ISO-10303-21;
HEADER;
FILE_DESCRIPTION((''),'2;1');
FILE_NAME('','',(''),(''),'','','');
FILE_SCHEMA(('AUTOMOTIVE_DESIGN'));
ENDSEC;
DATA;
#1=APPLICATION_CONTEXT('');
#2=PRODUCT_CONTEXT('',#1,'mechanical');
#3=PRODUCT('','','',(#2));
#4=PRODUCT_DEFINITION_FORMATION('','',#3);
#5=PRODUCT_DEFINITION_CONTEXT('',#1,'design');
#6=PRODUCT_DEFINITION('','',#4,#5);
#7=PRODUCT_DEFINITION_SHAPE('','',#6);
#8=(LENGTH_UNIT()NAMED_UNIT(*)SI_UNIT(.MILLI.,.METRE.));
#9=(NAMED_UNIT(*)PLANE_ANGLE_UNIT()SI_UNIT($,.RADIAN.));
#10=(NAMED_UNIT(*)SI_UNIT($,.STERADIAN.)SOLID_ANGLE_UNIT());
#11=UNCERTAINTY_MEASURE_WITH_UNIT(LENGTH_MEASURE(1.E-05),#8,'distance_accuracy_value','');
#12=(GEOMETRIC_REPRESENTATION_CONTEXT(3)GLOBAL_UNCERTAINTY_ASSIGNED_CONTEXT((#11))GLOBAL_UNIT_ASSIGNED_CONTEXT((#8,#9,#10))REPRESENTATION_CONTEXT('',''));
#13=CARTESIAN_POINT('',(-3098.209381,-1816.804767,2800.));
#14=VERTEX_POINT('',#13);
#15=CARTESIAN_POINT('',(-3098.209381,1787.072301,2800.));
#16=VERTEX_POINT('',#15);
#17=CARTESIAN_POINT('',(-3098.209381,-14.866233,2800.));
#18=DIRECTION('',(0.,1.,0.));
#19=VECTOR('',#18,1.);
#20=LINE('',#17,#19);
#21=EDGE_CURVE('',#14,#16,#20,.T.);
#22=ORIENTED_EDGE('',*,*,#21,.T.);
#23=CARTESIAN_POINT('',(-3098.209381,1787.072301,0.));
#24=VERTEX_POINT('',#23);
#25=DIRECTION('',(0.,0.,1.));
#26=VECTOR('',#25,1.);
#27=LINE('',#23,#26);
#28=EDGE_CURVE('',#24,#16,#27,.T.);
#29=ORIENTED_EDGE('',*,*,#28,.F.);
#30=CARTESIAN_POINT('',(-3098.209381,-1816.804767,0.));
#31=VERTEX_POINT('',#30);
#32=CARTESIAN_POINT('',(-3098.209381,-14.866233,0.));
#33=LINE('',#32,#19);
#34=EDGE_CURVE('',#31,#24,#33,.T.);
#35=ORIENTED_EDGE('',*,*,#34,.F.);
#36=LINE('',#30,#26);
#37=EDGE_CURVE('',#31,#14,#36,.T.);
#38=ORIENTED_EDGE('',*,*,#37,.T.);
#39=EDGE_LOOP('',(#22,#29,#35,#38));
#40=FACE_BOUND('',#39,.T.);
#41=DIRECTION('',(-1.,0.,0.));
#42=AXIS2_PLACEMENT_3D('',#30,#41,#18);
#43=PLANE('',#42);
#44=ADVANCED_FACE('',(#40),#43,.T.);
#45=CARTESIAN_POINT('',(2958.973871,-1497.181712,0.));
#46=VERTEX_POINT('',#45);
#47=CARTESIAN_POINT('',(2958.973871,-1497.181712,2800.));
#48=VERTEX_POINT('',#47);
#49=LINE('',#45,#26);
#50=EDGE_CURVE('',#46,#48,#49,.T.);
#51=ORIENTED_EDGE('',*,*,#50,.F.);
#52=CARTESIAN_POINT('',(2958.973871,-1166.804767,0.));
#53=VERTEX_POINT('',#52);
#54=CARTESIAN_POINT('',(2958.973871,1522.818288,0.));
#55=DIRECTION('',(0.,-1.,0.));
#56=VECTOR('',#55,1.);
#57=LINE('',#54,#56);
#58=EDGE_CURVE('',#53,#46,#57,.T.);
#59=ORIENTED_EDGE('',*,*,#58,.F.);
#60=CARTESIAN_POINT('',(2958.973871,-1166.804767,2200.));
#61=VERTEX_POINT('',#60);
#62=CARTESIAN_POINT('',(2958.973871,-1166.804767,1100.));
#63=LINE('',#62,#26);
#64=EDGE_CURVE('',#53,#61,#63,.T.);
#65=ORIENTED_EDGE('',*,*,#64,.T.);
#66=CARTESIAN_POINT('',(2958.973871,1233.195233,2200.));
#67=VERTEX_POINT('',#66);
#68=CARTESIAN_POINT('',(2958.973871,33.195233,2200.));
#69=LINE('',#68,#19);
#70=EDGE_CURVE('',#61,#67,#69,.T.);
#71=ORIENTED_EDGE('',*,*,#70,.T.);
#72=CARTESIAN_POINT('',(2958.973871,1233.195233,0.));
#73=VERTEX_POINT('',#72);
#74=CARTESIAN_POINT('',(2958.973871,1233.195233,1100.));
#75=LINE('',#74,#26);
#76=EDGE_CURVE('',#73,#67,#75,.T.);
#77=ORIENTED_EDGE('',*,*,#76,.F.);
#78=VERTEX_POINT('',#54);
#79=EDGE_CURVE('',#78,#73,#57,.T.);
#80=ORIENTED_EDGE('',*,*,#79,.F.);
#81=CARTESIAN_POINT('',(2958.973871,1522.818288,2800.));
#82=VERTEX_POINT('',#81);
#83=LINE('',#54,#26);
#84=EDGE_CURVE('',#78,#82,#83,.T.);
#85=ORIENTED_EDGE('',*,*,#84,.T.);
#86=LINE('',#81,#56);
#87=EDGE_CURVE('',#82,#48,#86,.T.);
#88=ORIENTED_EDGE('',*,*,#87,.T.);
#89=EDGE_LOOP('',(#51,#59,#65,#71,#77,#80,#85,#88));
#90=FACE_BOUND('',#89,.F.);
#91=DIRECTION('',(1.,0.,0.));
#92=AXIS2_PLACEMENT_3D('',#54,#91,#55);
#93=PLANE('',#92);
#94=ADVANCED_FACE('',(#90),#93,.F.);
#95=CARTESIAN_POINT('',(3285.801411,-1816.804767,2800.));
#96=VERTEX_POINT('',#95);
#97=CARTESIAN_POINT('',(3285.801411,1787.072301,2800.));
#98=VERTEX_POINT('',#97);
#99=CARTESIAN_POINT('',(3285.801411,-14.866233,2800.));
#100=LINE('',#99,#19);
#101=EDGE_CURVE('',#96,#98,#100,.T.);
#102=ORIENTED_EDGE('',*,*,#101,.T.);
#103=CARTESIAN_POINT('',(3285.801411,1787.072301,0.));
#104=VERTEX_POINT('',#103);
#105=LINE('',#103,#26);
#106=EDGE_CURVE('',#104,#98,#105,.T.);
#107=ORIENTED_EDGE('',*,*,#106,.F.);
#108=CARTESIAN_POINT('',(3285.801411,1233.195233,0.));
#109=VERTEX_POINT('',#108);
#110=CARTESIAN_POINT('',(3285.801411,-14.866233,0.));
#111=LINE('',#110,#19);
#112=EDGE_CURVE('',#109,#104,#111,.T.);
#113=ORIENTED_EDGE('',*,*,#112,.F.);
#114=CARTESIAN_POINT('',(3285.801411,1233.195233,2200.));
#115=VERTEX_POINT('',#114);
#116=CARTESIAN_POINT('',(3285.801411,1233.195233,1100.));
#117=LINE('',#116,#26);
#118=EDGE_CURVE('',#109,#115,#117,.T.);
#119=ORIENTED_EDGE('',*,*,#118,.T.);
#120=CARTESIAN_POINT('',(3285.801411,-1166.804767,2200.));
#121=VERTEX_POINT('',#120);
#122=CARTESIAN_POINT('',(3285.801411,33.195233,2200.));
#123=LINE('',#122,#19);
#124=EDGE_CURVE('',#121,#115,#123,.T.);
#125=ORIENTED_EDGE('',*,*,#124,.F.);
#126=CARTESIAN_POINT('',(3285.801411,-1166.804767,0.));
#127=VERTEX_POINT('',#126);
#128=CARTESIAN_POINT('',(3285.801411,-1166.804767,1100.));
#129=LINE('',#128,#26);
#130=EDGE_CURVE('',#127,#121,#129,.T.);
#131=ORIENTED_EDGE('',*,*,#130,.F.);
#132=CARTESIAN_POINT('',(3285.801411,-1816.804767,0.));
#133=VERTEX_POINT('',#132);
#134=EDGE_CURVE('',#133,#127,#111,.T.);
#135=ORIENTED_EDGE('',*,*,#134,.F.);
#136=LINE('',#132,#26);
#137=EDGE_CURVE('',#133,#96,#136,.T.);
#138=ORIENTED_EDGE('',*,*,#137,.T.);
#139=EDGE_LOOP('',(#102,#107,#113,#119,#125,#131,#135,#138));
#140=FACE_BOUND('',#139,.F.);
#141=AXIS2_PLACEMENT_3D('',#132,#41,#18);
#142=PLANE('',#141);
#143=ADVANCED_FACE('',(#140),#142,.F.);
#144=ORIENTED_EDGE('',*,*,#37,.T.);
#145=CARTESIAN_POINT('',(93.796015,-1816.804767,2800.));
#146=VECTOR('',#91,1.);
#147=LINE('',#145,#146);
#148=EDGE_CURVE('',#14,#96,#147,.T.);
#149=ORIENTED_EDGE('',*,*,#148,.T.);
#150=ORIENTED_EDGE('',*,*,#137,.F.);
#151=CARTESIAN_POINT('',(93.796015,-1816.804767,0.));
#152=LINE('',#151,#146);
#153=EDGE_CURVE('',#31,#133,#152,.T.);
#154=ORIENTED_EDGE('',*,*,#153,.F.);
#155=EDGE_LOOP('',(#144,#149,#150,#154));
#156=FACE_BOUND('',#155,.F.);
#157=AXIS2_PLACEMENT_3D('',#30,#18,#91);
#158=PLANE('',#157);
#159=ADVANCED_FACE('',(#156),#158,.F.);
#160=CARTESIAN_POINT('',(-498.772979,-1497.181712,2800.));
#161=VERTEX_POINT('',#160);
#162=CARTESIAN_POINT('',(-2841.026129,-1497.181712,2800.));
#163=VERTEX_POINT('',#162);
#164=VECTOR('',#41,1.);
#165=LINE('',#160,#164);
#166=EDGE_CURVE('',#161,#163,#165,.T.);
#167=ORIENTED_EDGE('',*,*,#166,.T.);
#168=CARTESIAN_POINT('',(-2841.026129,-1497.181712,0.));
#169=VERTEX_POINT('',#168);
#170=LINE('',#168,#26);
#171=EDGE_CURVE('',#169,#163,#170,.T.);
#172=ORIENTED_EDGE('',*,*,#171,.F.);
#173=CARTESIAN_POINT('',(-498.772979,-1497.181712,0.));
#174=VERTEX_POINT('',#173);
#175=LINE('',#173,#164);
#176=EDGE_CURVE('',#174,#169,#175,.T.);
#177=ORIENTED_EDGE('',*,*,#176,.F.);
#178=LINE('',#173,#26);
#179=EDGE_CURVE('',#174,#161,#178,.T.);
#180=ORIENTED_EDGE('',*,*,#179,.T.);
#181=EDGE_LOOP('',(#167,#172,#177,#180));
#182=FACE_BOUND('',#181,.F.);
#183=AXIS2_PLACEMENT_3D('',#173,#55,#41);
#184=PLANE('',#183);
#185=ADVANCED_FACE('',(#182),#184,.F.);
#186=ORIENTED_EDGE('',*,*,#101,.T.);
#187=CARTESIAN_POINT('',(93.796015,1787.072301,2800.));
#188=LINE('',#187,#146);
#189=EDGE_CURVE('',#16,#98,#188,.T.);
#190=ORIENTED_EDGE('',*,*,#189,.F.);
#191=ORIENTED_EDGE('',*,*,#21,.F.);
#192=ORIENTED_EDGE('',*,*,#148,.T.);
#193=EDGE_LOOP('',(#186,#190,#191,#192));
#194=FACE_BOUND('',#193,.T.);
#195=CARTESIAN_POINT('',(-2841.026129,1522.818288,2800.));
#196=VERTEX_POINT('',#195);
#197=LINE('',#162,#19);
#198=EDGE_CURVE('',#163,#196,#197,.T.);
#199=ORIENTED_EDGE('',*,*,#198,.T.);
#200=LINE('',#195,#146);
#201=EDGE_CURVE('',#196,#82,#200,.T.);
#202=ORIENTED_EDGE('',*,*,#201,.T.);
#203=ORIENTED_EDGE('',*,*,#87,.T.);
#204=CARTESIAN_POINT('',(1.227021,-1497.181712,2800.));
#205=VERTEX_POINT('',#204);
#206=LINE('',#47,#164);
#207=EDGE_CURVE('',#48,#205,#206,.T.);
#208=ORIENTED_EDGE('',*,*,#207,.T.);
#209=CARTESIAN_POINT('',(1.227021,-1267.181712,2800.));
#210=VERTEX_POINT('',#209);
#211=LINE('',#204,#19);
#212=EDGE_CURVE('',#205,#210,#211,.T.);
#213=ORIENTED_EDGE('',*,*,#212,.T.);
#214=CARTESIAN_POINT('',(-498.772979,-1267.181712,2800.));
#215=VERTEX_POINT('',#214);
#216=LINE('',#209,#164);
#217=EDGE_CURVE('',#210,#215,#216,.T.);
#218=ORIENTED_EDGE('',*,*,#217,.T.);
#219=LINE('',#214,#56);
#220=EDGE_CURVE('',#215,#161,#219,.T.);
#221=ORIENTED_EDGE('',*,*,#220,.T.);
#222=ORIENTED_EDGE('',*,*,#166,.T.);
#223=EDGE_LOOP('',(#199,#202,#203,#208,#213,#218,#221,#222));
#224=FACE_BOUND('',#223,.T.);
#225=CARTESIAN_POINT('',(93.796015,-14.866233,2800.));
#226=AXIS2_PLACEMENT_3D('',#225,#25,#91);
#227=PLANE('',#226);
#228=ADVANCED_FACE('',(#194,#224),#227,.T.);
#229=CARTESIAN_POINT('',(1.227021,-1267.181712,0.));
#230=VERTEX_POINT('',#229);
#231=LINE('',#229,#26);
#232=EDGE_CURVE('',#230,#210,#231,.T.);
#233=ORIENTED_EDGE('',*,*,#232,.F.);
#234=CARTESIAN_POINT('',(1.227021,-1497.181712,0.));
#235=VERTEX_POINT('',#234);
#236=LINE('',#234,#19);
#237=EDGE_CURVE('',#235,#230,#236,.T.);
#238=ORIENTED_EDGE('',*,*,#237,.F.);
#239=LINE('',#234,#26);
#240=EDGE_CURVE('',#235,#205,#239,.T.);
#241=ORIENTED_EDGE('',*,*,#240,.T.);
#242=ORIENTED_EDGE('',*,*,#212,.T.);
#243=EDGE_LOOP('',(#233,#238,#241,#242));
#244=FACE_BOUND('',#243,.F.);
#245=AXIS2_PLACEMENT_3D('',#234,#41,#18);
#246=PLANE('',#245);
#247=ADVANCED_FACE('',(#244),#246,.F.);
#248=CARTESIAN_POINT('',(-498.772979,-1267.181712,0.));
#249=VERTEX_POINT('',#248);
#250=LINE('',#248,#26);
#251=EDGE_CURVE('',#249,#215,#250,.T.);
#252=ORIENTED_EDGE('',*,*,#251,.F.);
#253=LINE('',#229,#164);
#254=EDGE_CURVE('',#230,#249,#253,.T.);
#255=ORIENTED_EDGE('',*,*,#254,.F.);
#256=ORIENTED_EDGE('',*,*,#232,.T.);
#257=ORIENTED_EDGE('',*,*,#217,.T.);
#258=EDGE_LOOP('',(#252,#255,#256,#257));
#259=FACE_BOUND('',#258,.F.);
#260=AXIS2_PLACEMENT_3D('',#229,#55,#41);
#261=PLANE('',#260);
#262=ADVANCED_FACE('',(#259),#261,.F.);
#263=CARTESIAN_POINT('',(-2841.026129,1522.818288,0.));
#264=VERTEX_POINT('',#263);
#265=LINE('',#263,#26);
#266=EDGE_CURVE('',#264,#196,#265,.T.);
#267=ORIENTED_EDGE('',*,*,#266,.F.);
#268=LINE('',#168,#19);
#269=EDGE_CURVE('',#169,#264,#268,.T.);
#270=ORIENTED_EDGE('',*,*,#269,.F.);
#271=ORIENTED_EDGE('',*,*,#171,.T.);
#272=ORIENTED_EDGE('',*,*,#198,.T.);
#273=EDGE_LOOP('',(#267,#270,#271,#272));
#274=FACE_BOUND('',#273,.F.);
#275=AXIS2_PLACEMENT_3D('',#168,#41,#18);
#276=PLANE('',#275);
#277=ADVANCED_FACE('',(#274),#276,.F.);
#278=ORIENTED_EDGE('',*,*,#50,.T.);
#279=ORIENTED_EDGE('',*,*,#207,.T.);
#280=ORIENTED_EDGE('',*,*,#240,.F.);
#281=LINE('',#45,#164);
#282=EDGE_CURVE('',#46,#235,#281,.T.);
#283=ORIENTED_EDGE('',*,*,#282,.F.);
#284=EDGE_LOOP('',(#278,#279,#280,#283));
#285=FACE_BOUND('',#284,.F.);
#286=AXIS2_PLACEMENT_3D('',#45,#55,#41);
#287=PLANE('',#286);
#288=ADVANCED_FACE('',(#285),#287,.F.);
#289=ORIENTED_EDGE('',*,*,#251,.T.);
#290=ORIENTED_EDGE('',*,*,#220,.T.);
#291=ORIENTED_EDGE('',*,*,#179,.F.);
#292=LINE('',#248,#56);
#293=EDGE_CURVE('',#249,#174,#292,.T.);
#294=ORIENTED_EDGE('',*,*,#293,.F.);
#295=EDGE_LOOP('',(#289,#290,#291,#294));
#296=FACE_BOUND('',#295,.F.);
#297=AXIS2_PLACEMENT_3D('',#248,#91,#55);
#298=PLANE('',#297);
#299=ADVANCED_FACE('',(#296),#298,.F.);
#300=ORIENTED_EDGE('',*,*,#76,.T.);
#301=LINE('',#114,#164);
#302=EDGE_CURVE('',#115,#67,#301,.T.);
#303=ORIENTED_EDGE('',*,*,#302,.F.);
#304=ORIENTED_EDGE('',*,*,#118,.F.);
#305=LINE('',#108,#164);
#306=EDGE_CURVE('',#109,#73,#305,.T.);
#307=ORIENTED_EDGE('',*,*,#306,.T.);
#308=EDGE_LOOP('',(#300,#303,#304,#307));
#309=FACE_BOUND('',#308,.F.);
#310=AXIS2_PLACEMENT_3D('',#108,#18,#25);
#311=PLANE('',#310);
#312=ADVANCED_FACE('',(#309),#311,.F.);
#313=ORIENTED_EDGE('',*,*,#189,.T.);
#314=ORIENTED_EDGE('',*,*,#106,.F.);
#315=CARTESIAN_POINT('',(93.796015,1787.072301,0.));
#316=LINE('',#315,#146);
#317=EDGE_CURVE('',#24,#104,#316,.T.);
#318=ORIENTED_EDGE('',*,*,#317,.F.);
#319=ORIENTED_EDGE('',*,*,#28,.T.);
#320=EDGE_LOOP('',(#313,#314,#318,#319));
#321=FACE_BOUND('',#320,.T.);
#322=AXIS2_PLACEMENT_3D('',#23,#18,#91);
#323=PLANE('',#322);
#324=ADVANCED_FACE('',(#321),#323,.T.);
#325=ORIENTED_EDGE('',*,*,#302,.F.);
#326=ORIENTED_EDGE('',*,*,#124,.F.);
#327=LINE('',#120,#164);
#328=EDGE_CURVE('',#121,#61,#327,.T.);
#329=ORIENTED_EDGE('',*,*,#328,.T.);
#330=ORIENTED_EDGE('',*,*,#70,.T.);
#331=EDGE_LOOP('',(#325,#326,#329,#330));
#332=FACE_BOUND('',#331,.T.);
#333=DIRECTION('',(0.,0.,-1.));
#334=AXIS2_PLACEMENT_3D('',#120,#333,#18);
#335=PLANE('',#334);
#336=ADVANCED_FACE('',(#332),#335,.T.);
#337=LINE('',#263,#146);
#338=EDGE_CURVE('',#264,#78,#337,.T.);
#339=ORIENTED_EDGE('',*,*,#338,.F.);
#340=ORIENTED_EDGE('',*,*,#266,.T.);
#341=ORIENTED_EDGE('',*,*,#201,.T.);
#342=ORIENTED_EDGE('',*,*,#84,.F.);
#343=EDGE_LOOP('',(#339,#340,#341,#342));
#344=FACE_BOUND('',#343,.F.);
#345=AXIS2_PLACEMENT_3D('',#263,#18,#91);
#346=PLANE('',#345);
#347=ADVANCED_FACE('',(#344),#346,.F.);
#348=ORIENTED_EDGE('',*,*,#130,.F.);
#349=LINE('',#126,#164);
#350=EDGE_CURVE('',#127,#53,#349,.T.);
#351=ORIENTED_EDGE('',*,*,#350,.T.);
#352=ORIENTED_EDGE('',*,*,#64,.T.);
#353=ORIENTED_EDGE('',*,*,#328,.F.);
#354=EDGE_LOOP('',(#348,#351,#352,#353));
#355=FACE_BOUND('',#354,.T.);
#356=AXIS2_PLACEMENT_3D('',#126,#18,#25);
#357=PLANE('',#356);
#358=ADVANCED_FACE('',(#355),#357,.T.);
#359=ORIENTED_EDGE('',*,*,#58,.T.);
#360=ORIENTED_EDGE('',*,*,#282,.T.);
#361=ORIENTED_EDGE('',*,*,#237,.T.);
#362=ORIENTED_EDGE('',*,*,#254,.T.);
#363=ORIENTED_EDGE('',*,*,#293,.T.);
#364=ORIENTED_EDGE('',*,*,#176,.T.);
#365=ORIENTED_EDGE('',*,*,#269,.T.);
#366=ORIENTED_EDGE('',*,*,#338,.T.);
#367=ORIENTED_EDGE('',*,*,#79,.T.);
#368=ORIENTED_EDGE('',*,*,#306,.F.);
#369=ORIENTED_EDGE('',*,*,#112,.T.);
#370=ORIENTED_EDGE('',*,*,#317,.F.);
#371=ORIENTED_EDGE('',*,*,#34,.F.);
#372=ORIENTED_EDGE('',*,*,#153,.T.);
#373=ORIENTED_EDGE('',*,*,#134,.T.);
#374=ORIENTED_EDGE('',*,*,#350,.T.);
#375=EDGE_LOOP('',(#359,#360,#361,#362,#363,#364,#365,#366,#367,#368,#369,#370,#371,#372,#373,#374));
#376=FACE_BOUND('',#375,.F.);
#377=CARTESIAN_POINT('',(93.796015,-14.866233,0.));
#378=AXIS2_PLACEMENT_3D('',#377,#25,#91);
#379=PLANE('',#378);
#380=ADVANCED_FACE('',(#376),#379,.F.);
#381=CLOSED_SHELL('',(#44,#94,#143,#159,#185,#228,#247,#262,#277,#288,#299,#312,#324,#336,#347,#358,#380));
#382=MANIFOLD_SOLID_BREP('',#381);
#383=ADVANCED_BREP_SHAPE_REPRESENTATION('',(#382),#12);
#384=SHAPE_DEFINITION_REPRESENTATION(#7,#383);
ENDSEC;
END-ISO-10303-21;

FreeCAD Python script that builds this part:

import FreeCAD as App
import Part
import Sketcher

V = App.Vector
Q = App.Units.Quantity

doc = App.newDocument("Part")
body = doc.addObject("PartDesign::Body", "Body")

# Sketch on XY plane
sketch1 = body.newObject("Sketcher::SketchObject", "Sketch")
sketch1.AttachmentSupport = (doc.getObject("XY_Plane"), [""])
sketch1.MapMode = "FlatFace"
sketch1.addGeometry([
    Part.LineSegment(V(-3098, 1787, 0), V(-3098, -1817, 0)),  # 0
    Part.LineSegment(V(-3098, -1817, 0), V(3286, -1817, 0)),  # 1
    Part.LineSegment(V(3286, -1817, 0), V(3286, 1787, 0)),  # 2
    Part.LineSegment(V(3286, 1787, 0), V(-3098, 1787, 0)),  # 3
    Part.LineSegment(V(-499, -1267, 0), V(-499, -1497, 0)),  # 4
    Part.LineSegment(V(-499, -1497, 0), V(-2841, -1497, 0)),  # 5
    Part.LineSegment(V(-2841, -1497, 0), V(-2841, 1523, 0)),  # 6
    Part.LineSegment(V(-2841, 1523, 0), V(2959, 1523, 0)),  # 7
    Part.LineSegment(V(2959, 1523, 0), V(2959, -1497, 0)),  # 8
    Part.LineSegment(V(2959, -1497, 0), V(1, -1497, 0)),  # 9
    Part.LineSegment(V(1, -1497, 0), V(1, -1267, 0)),  # 10
    Part.LineSegment(V(1, -1267, 0), V(-499, -1267, 0)),  # 11
], False)
sketch1.addConstraint([
    Sketcher.Constraint("Coincident", 0, 2, 1, 1),
    Sketcher.Constraint("Coincident", 1, 2, 2, 1),
    Sketcher.Constraint("Coincident", 2, 2, 3, 1),
    Sketcher.Constraint("Coincident", 3, 2, 0, 1),
    Sketcher.Constraint("Coincident", 4, 2, 5, 1),
    Sketcher.Constraint("Coincident", 5, 2, 6, 1),
    Sketcher.Constraint("Coincident", 6, 2, 7, 1),
    Sketcher.Constraint("Coincident", 7, 2, 8, 1),
    Sketcher.Constraint("Coincident", 8, 2, 9, 1),
    Sketcher.Constraint("Coincident", 9, 2, 10, 1),
    Sketcher.Constraint("Coincident", 10, 2, 11, 1),
    Sketcher.Constraint("Coincident", 11, 2, 4, 1),
    Sketcher.Constraint("Vertical", 0),
    Sketcher.Constraint("Horizontal", 1),
    Sketcher.Constraint("Vertical", 2),
    Sketcher.Constraint("Horizontal", 3),
    Sketcher.Constraint("Vertical", 4),
    Sketcher.Constraint("Horizontal", 5),
    Sketcher.Constraint("Vertical", 6),
    Sketcher.Constraint("Horizontal", 7),
    Sketcher.Constraint("Vertical", 8),
    Sketcher.Constraint("Horizontal", 9),
    Sketcher.Constraint("Vertical", 10),
    Sketcher.Constraint("Horizontal", 11),
    Sketcher.Constraint("Horizontal", 5, 2, 8, 2),
    Sketcher.Constraint("DistanceX", 7, 1, 7, 2, Q("5800 mm")),
    Sketcher.Constraint("DistanceX", 11, 2, 11, 1, Q("500 mm")),
    Sketcher.Constraint("DistanceY", 4, 2, 4, 1, Q("230 mm")),
    Sketcher.Constraint("DistanceY", 6, 1, 6, 2, Q("3020 mm")),
    Sketcher.Constraint("DistanceX", 1, 1, 1, 2, Q("6384.010792 mm")),
    Sketcher.Constraint("DistanceX", 5, 2, 5, 1, Q("2342.25315 mm")),
    Sketcher.Constraint("DistanceY", -1, 1, 2, 2, Q("1787.072301 mm")),
    Sketcher.Constraint("DistanceY", 0, 2, 0, 1, Q("3603.877068 mm")),
    Sketcher.Constraint("DistanceX", 0, 2, -1, 1, Q("3098.209381 mm")),
    Sketcher.Constraint("DistanceX", 4, 2, -1, 1, Q("498.772979 mm")),
    Sketcher.Constraint("DistanceY", 4, 2, -1, 1, Q("1497.181712 mm")),
])
pad1 = body.newObject("PartDesign::Pad", "Pad")
pad1.Profile = sketch1
pad1.Length = 2800

# Sketch on YZ plane
sketch2 = body.newObject("Sketcher::SketchObject", "Sketch001")
sketch2.AttachmentSupport = (doc.getObject("YZ_Plane"), [""])
sketch2.MapMode = "FlatFace"
sketch2.AttachmentOffset = App.Placement(V(0, 0, 3285.801411), App.Rotation())
sketch2.addGeometry([
    Part.LineSegment(V(-1167, 2200, 0), V(-1167, 0, 0)),
    Part.LineSegment(V(-1167, 0, 0), V(1233, 0, 0)),
    Part.LineSegment(V(1233, 0, 0), V(1233, 2200, 0)),
    Part.LineSegment(V(1233, 2200, 0), V(-1167, 2200, 0)),
], False)
sketch2.addConstraint([
    Sketcher.Constraint("Coincident", 0, 2, 1, 1),
    Sketcher.Constraint("Coincident", 1, 2, 2, 1),
    Sketcher.Constraint("Coincident", 2, 2, 3, 1),
    Sketcher.Constraint("Coincident", 3, 2, 0, 1),
    Sketcher.Constraint("Vertical", 0),
    Sketcher.Constraint("Horizontal", 1),
    Sketcher.Constraint("Vertical", 2),
    Sketcher.Constraint("Horizontal", 3),
    Sketcher.Constraint("PointOnObject", 0, 2, -1),
    Sketcher.Constraint("DistanceX", 1, 1, 1, 2, Q("2400 mm")),
    Sketcher.Constraint("DistanceY", 0, 2, 0, 1, Q("2200 mm")),
    Sketcher.Constraint("DistanceX", 0, 2, -1, 1, Q("1166.804767 mm")),
])
pocket1 = body.newObject("PartDesign::Pocket", "Pocket")
pocket1.Profile = sketch2
pocket1.Length = 326.827539

doc.recompute()
